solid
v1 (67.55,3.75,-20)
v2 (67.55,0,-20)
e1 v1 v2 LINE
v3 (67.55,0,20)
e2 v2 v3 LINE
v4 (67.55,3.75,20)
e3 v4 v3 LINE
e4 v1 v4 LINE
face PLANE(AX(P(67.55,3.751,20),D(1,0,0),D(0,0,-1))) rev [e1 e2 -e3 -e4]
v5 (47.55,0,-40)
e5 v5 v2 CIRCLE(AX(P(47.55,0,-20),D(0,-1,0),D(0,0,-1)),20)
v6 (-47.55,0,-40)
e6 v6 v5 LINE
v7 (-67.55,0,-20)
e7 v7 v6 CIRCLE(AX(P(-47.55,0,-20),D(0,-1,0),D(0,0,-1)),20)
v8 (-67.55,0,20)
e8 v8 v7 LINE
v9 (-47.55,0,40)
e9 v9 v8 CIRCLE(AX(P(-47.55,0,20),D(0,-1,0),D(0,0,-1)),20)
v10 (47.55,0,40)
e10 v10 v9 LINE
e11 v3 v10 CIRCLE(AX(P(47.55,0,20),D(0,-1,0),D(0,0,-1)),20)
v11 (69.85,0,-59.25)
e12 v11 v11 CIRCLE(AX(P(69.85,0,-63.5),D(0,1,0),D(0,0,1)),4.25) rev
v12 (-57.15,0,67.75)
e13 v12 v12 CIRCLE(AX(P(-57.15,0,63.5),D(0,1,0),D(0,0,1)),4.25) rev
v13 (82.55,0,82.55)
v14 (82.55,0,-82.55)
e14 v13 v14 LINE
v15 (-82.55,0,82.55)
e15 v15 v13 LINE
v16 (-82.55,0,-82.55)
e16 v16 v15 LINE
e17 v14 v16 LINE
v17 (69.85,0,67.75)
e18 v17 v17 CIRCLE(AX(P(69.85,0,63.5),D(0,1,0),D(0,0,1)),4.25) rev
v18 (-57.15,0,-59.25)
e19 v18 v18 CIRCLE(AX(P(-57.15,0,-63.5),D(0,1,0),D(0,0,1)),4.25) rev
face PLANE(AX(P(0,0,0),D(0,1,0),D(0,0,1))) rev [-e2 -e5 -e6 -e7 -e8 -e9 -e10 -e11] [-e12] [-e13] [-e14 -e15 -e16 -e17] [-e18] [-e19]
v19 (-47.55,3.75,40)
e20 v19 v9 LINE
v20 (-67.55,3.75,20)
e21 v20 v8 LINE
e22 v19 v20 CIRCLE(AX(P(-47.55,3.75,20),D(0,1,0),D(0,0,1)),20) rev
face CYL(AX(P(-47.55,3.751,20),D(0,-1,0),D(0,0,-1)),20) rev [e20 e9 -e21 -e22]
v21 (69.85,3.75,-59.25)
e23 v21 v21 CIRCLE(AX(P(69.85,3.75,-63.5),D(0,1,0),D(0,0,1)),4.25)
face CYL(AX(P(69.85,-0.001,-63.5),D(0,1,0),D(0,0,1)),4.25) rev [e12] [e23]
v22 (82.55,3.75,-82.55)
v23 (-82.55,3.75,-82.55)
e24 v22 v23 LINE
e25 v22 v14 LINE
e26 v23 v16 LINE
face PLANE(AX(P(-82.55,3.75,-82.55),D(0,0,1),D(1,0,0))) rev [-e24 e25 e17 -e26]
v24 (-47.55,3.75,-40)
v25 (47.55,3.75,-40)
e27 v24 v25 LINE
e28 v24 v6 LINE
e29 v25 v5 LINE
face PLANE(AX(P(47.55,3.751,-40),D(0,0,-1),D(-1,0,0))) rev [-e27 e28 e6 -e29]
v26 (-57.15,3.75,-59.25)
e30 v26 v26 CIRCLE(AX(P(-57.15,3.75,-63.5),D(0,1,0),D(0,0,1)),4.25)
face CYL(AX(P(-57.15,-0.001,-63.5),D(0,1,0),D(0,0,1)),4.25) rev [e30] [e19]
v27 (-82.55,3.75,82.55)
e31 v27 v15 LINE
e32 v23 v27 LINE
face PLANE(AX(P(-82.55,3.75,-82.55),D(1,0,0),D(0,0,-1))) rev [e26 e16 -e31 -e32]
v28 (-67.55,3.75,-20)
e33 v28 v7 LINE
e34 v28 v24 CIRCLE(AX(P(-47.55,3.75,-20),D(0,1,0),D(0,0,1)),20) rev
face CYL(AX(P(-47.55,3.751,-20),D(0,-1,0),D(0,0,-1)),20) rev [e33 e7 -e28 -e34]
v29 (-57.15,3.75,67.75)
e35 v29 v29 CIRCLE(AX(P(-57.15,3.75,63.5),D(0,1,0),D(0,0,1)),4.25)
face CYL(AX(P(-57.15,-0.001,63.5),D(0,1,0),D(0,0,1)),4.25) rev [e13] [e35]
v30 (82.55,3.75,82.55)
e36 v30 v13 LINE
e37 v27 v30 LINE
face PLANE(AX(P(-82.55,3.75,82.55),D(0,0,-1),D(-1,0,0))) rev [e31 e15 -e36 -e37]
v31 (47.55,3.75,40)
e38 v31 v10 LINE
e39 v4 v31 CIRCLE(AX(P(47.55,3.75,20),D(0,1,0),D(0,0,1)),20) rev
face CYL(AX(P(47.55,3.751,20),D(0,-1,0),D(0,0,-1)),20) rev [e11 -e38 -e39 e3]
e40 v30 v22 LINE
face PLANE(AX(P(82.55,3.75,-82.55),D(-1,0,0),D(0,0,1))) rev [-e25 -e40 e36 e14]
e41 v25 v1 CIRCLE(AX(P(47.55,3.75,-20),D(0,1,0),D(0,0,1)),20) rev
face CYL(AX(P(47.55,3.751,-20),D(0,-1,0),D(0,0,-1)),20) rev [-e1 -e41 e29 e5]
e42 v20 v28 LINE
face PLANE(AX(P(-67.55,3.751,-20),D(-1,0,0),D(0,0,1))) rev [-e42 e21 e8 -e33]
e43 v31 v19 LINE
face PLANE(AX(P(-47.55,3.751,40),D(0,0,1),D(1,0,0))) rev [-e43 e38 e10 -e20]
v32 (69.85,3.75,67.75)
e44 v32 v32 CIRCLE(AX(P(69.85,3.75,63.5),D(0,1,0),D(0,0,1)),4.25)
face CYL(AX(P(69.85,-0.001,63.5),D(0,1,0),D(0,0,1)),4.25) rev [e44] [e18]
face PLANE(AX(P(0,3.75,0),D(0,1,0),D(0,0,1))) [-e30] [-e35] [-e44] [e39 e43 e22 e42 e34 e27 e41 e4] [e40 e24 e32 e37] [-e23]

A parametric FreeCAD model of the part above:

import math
import FreeCAD as App
import Part
import Sketcher
from FreeCAD import Vector

doc = App.newDocument("Part")
body = doc.addObject("PartDesign::Body", "Body")

sketch1 = doc.addObject("Sketcher::SketchObject", "Sketch")
body.addObject(sketch1)
sketch1.AttachmentSupport = (doc.XZ_Plane, [""])
sketch1.MapMode = "FlatFace"
sketch1.addGeometry(Part.LineSegment(Vector(-83, -83, 0), Vector(-83, 83, 0)), False)
sketch1.addGeometry(Part.LineSegment(Vector(-83, 83, 0), Vector(83, 83, 0)), False)
sketch1.addGeometry(Part.LineSegment(Vector(83, 83, 0), Vector(83, -83, 0)), False)
sketch1.addGeometry(Part.LineSegment(Vector(83, -83, 0), Vector(-83, -83, 0)), False)
sketch1.addConstraint(Sketcher.Constraint("Coincident", 0, 2, 1, 1))
sketch1.addConstraint(Sketcher.Constraint("Coincident", 1, 2, 2, 1))
sketch1.addConstraint(Sketcher.Constraint("Coincident", 2, 2, 3, 1))
sketch1.addConstraint(Sketcher.Constraint("Coincident", 3, 2, 0, 1))
sketch1.addConstraint(Sketcher.Constraint("Vertical", 0))
sketch1.addConstraint(Sketcher.Constraint("Horizontal", 1))
sketch1.addConstraint(Sketcher.Constraint("Vertical", 2))
sketch1.addConstraint(Sketcher.Constraint("Horizontal", 3))
sketch1.addConstraint(Sketcher.Constraint("Symmetric", 0, 2, 2, 2, -1, 1))
sketch1.addConstraint(Sketcher.Constraint("Equal", 3, 0))
sketch1.addConstraint(Sketcher.Constraint("DistanceX", 1, 1, 1, 2, 165.1))
pad1 = doc.addObject("PartDesign::Pad", "Pad")
body.addObject(pad1)
pad1.Profile = sketch1
pad1.Length = 3.75
pad1.Reversed = True

sketch2 = doc.addObject("Sketcher::SketchObject", "Sketch001")
body.addObject(sketch2)
sketch2.AttachmentSupport = (doc.XZ_Plane, [""])
sketch2.MapMode = "FlatFace"
sketch2.AttachmentOffset = App.Placement(Vector(0, 0, -3.75), App.Rotation())
sketch2.addGeometry(Part.Circle(Vector(69.8, -63.5, 0), Vector(0, 0, 1), 4.2), False)
sketch2.addConstraint(Sketcher.Constraint("Diameter", 0, 8.5))
sketch2.addConstraint(Sketcher.Constraint("DistanceY", 0, 3, -1, 1, 63.5))
sketch2.addConstraint(Sketcher.Constraint("DistanceX", -1, 1, 0, 3, 69.85))
pocket1 = doc.addObject("PartDesign::Pocket", "Pocket")
body.addObject(pocket1)
pocket1.Profile = sketch2
pocket1.Type = "UpToFirst"
pocket1.Reversed = True

sketch3 = doc.addObject("Sketcher::SketchObject", "Sketch002")
body.addObject(sketch3)
sketch3.AttachmentSupport = (doc.XZ_Plane, [""])
sketch3.MapMode = "FlatFace"
sketch3.AttachmentOffset = App.Placement(Vector(0, 0, -3.75), App.Rotation())
sketch3.addGeometry(Part.Circle(Vector(-57.1, -63.5, 0), Vector(0, 0, 1), 4.2), False)
sketch3.addConstraint(Sketcher.Constraint("Diameter", 0, 8.5))
sketch3.addConstraint(Sketcher.Constraint("DistanceY", 0, 3, -1, 1, 63.5))
sketch3.addConstraint(Sketcher.Constraint("DistanceX", 0, 3, -1, 1, 57.15))
pocket2 = doc.addObject("PartDesign::Pocket", "Pocket001")
body.addObject(pocket2)
pocket2.Profile = sketch3
pocket2.Type = "UpToFirst"
pocket2.Reversed = True

sketch4 = doc.addObject("Sketcher::SketchObject", "Sketch003")
body.addObject(sketch4)
sketch4.AttachmentSupport = (doc.XZ_Plane, [""])
sketch4.MapMode = "FlatFace"
sketch4.AttachmentOffset = App.Placement(Vector(0, 0, -3.75), App.Rotation())
sketch4.addGeometry(Part.Circle(Vector(-57.1, 63.5, 0), Vector(0, 0, 1), 4.2), False)
sketch4.addConstraint(Sketcher.Constraint("Diameter", 0, 8.5))
sketch4.addConstraint(Sketcher.Constraint("DistanceY", -1, 1, 0, 3, 63.5))
sketch4.addConstraint(Sketcher.Constraint("DistanceX", 0, 3, -1, 1, 57.15))
pocket3 = doc.addObject("PartDesign::Pocket", "Pocket002")
body.addObject(pocket3)
pocket3.Profile = sketch4
pocket3.Type = "UpToFirst"
pocket3.Reversed = True

sketch5 = doc.addObject("Sketcher::SketchObject", "Sketch004")
body.addObject(sketch5)
sketch5.AttachmentSupport = (doc.XZ_Plane, [""])
sketch5.MapMode = "FlatFace"
sketch5.AttachmentOffset = App.Placement(Vector(0, 0, -3.75), App.Rotation())
sketch5.addGeometry(Part.Circle(Vector(69.8, 63.5, 0), Vector(0, 0, 1), 4.2), False)
sketch5.addConstraint(Sketcher.Constraint("Diameter", 0, 8.5))
sketch5.addConstraint(Sketcher.Constraint("DistanceY", -1, 1, 0, 3, 63.5))
sketch5.addConstraint(Sketcher.Constraint("DistanceX", -1, 1, 0, 3, 69.85))
pocket4 = doc.addObject("PartDesign::Pocket", "Pocket003")
body.addObject(pocket4)
pocket4.Profile = sketch5
pocket4.Type = "UpToFirst"
pocket4.Reversed = True

sketch6 = doc.addObject("Sketcher::SketchObject", "Sketch005")
body.addObject(sketch6)
sketch6.AttachmentSupport = (doc.XZ_Plane, [""])
sketch6.MapMode = "FlatFace"
sketch6.addGeometry(Part.LineSegment(Vector(-68, 20, 0), Vector(-68, -20, 0)), False)
sketch6.addGeometry(Part.ArcOfCircle(Part.Circle(Vector(-48, -20, 0), Vector(0, 0, 1), 20), math.radians(180), math.radians(270)), False)
sketch6.addGeometry(Part.LineSegment(Vector(-48, -40, 0), Vector(48, -40, 0)), False)
sketch6.addGeometry(Part.ArcOfCircle(Part.Circle(Vector(48, -20, 0), Vector(0, 0, 1), 20), math.radians(-90), math.radians(0)), False)
sketch6.addGeometry(Part.LineSegment(Vector(68, -20, 0), Vector(68, 20, 0)), False)
sketch6.addGeometry(Part.ArcOfCircle(Part.Circle(Vector(48, 20, 0), Vector(0, 0, 1), 20), math.radians(0), math.radians(90)), False)
sketch6.addGeometry(Part.LineSegment(Vector(48, 40, 0), Vector(-48, 40, 0)), False)
sketch6.addGeometry(Part.ArcOfCircle(Part.Circle(Vector(-48, 20, 0), Vector(0, 0, 1), 20), math.radians(90), math.radians(180)), False)
sketch6.addConstraint(Sketcher.Constraint("Tangent", 0, 2, 1, 1))
sketch6.addConstraint(Sketcher.Constraint("Tangent", 1, 2, 2, 1))
sketch6.addConstraint(Sketcher.Constraint("Tangent", 2, 2, 3, 1))
sketch6.addConstraint(Sketcher.Constraint("Tangent", 3, 2, 4, 1))
sketch6.addConstraint(Sketcher.Constraint("Tangent", 4, 2, 5, 1))
sketch6.addConstraint(Sketcher.Constraint("Tangent", 5, 2, 6, 1))
sketch6.addConstraint(Sketcher.Constraint("Tangent", 6, 2, 7, 1))
sketch6.addConstraint(Sketcher.Constraint("Tangent", 7, 2, 0, 1))
sketch6.addConstraint(Sketcher.Constraint("Vertical", 0))
sketch6.addConstraint(Sketcher.Constraint("Horizontal", 2))
sketch6.addConstraint(Sketcher.Constraint("Vertical", 4))
sketch6.addConstraint(Sketcher.Constraint("Horizontal", 6))
sketch6.addConstraint(Sketcher.Constraint("Equal", 1, 3))
sketch6.addConstraint(Sketcher.Constraint("Equal", 3, 5))
sketch6.addConstraint(Sketcher.Constraint("Equal", 5, 7))
sketch6.addConstraint(Sketcher.Constraint("Symmetric", 1, 3, 5, 3, -1, 1))
sketch6.addConstraint(Sketcher.Constraint("Radius", 1, 20.0))
sketch6.addConstraint(Sketcher.Constraint("DistanceY", 0, 2, 0, 1, 40.0))
sketch6.addConstraint(Sketcher.Constraint("DistanceX", 2, 1, 2, 2, 95.1))
pocket5 = doc.addObject("PartDesign::Pocket", "Pocket004")
body.addObject(pocket5)
pocket5.Profile = sketch6
pocket5.Type = "UpToFirst"

doc.recompute()
